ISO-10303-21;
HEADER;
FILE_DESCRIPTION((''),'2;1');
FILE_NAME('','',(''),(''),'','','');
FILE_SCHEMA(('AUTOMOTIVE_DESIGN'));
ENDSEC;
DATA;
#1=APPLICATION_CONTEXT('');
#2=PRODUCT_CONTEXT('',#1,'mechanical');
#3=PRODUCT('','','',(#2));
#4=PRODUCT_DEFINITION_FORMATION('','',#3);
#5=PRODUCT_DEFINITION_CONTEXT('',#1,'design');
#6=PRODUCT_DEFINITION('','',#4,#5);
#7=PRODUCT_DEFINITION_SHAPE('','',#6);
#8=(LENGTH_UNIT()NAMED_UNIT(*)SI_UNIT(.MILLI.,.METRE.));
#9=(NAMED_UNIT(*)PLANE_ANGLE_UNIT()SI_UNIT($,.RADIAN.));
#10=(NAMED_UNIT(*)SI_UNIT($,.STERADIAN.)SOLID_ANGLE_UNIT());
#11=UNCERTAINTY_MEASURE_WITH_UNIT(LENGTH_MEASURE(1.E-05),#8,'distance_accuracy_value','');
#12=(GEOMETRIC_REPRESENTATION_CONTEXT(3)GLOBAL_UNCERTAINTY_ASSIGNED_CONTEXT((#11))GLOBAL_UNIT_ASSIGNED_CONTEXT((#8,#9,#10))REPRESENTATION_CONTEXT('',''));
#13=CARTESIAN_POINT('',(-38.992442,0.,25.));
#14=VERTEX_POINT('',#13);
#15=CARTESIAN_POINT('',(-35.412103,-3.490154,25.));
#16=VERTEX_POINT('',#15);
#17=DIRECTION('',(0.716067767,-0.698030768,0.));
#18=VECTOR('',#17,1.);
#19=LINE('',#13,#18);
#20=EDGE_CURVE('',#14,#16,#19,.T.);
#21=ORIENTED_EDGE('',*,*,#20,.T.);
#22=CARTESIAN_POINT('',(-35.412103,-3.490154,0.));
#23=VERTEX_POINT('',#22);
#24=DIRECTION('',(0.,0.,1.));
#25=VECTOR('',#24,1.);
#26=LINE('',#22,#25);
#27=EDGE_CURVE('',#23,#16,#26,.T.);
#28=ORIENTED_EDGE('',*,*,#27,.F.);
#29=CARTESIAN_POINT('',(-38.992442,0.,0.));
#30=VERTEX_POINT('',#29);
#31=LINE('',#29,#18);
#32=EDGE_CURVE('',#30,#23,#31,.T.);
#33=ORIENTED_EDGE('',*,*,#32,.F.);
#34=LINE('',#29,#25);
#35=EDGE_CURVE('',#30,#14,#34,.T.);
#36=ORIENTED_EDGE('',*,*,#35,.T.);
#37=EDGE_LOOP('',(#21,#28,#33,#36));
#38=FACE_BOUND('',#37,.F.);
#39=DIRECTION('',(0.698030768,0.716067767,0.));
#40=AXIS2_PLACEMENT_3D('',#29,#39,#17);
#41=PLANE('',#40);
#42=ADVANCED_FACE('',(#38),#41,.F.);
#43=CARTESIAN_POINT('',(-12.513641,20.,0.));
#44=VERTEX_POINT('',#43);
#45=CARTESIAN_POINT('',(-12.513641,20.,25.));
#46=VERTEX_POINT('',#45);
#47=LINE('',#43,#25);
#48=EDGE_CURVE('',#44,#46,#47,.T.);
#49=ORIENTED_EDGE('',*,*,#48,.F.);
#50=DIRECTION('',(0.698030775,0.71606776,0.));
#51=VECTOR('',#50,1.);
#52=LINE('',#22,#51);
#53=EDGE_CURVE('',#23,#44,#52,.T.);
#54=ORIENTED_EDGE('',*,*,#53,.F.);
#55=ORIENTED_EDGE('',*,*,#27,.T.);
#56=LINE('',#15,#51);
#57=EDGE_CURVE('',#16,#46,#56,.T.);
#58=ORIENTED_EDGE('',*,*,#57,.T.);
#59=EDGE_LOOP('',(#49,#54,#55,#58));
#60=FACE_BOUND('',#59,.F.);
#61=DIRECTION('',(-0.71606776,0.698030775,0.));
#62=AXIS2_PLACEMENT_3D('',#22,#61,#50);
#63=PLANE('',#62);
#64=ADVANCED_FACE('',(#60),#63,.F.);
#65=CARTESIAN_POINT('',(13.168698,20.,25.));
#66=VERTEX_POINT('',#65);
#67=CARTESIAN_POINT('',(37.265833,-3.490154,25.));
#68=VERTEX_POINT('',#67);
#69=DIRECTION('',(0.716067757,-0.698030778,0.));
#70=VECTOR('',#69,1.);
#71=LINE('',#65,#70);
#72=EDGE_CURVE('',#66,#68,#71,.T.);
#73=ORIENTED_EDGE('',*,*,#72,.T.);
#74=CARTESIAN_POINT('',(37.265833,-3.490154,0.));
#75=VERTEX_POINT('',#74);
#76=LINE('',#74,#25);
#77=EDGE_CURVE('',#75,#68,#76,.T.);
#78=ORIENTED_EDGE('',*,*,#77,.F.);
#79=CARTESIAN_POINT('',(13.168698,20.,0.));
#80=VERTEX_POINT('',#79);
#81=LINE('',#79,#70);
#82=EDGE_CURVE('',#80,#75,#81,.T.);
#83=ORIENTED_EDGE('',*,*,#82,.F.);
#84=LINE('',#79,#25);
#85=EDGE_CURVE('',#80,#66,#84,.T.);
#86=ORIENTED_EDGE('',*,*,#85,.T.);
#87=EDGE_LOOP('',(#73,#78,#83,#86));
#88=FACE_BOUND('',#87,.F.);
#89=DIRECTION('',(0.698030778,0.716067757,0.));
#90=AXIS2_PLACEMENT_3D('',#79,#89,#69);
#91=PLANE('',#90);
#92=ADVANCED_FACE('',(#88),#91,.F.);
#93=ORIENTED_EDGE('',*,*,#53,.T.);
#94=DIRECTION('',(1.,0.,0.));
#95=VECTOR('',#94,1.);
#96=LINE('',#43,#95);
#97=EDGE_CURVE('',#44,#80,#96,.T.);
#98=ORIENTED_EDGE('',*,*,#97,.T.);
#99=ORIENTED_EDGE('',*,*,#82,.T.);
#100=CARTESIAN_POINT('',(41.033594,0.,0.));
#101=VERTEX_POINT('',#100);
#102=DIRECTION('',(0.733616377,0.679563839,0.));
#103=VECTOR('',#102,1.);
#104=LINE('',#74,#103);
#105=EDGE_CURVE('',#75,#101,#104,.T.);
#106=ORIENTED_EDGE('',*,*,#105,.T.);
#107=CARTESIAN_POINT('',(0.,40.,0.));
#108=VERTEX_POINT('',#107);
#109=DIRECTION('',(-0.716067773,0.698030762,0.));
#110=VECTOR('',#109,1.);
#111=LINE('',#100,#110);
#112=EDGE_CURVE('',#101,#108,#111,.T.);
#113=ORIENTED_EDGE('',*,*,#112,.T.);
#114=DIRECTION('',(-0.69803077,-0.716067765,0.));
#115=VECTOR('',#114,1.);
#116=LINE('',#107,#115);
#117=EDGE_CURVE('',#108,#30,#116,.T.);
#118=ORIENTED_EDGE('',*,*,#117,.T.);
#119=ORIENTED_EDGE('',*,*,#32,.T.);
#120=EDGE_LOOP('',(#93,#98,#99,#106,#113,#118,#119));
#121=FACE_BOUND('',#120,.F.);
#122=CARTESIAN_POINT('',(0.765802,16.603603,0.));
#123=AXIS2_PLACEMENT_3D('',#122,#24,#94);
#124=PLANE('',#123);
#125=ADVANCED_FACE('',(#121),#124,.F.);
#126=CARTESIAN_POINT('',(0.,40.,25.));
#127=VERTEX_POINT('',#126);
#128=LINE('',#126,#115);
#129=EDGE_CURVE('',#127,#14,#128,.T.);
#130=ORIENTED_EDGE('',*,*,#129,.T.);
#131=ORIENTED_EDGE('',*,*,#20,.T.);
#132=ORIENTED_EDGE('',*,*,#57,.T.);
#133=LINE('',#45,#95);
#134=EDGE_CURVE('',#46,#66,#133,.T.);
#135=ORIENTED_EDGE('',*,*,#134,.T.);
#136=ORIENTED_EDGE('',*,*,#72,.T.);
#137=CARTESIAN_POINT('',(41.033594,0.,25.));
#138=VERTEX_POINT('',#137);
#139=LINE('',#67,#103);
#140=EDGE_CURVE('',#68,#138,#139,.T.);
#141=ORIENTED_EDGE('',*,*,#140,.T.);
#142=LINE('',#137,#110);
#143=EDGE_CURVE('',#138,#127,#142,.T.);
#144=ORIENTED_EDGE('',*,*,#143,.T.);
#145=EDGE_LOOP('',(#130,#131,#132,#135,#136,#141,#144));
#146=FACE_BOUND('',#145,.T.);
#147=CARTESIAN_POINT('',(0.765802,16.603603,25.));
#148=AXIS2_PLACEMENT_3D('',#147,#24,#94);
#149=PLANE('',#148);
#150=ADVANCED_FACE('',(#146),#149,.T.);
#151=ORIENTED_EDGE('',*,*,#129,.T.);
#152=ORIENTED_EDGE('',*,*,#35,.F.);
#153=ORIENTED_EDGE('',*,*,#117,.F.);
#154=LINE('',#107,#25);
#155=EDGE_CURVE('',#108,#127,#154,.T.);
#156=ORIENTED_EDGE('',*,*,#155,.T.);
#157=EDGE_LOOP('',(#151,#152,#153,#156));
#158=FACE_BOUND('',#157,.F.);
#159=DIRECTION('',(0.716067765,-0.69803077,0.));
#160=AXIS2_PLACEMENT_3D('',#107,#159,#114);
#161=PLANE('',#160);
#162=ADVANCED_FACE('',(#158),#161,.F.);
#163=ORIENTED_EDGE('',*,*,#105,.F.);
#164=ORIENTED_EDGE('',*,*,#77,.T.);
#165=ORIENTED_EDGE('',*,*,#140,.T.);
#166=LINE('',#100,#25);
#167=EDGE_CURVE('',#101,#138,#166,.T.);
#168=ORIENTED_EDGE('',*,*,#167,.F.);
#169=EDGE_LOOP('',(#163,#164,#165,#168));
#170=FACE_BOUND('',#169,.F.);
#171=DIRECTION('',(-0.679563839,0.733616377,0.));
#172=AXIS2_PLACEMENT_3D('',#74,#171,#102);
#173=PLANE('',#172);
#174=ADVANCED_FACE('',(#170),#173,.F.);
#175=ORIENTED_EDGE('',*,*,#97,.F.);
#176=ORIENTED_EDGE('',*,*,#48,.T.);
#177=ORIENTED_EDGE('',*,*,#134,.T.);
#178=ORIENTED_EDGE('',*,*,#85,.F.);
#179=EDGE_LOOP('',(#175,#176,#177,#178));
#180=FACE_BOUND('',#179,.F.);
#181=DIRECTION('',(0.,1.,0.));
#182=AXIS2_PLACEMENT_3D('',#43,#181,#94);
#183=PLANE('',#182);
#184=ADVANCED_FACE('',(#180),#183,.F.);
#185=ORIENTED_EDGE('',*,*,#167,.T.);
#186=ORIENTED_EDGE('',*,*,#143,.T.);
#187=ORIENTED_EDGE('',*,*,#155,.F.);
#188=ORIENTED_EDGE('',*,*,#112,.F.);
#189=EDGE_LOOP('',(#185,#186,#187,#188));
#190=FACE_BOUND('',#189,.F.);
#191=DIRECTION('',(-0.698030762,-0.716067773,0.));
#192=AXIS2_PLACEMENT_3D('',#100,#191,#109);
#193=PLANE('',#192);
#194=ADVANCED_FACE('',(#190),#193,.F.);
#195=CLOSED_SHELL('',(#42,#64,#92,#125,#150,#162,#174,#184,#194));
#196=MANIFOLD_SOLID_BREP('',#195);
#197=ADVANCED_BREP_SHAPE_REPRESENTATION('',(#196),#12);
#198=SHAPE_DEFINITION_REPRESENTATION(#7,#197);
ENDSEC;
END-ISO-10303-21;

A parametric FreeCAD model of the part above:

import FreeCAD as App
import Part
import Sketcher
from FreeCAD import Vector

doc = App.newDocument("Part")
body = doc.addObject("PartDesign::Body", "Body")

# Sketch on XY plane
sketch1 = doc.addObject("Sketcher::SketchObject", "Sketch")
body.addObject(sketch1)
sketch1.AttachmentSupport = (doc.XY_Plane, [""])
sketch1.MapMode = "FlatFace"
sketch1.addGeometry([
    Part.LineSegment(Vector(0, 40, 0), Vector(-39, 0, 0)),  # 0
    Part.LineSegment(Vector(-39, 0, 0), Vector(-35, -3, 0)),  # 1
    Part.LineSegment(Vector(-35, -3, 0), Vector(-13, 20, 0)),  # 2
    Part.LineSegment(Vector(-13, 20, 0), Vector(13, 20, 0)),  # 3
    Part.LineSegment(Vector(13, 20, 0), Vector(37, -3, 0)),  # 4
    Part.LineSegment(Vector(37, -3, 0), Vector(41, 0, 0)),  # 5
    Part.LineSegment(Vector(41, 0, 0), Vector(0, 40, 0)),  # 6
], False)
sketch1.addConstraint([
    Sketcher.Constraint("Coincident", 0, 2, 1, 1),
    Sketcher.Constraint("Coincident", 1, 2, 2, 1),
    Sketcher.Constraint("Coincident", 2, 2, 3, 1),
    Sketcher.Constraint("Coincident", 3, 2, 4, 1),
    Sketcher.Constraint("Coincident", 4, 2, 5, 1),
    Sketcher.Constraint("Coincident", 5, 2, 6, 1),
    Sketcher.Constraint("Coincident", 6, 2, 0, 1),
    Sketcher.Constraint("Horizontal", 3),
    Sketcher.Constraint("PointOnObject", 0, 2, -1),
    Sketcher.Constraint("PointOnObject", 5, 2, -1),
    Sketcher.Constraint("PointOnObject", 6, 2, -2),
    Sketcher.Constraint("Perpendicular", 0, 1),
    Sketcher.Constraint("Perpendicular", 1, 2),
    Sketcher.Constraint("Perpendicular", 2, 4),
    Sketcher.Constraint("Parallel", 4, 6),
    Sketcher.Constraint("Horizontal", 1, 2, 4, 2),
    Sketcher.Constraint("Distance", 1, 5.0),
    Sketcher.Constraint("DistanceY", -1, 1, 2, 2, 20.0),
    Sketcher.Constraint("DistanceY", -1, 1, 6, 2, 40.0),
    Sketcher.Constraint("DistanceX", 3, 1, 3, 2, 25.682339),
    Sketcher.Constraint("DistanceX", 0, 2, 2, 2, 26.478801),
])
pad1 = doc.addObject("PartDesign::Pad", "Pad")
body.addObject(pad1)
pad1.Profile = sketch1
pad1.Length = 25

doc.recompute()
